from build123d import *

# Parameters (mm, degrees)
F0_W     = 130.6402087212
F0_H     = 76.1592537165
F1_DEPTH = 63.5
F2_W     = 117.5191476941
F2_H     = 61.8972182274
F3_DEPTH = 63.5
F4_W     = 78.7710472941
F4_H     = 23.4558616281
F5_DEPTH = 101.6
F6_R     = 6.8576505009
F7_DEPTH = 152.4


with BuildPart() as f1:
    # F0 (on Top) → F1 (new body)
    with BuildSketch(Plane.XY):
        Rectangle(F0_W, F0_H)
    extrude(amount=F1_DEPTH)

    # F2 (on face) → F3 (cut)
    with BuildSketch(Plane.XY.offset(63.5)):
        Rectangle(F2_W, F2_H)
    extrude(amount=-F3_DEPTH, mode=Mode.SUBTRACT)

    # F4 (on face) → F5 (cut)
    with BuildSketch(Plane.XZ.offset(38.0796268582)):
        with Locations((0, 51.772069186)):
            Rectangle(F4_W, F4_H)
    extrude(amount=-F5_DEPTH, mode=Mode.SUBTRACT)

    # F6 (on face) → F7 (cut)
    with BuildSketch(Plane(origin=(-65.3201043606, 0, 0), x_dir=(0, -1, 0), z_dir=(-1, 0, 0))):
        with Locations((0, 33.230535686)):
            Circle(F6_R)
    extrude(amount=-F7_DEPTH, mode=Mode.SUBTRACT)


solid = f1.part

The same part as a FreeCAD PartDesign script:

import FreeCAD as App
import Part
import Sketcher
from FreeCAD import Vector
Q = App.Units.Quantity

doc = App.newDocument("Part")
body = doc.addObject("PartDesign::Body", "Body")

sketch1 = body.newObject("Sketcher::SketchObject", "Sketch")
sketch1.AttachmentSupport = (doc.getObject("XY_Plane"), [""])
sketch1.MapMode = "FlatFace"
sketch1.addGeometry([
    Part.LineSegment(Vector(-65, 38, 0), Vector(-65, -38, 0)),
    Part.LineSegment(Vector(-65, -38, 0), Vector(65, -38, 0)),
    Part.LineSegment(Vector(65, -38, 0), Vector(65, 38, 0)),
    Part.LineSegment(Vector(65, 38, 0), Vector(-65, 38, 0)),
], False)
sketch1.addConstraint([
    Sketcher.Constraint("Coincident", 0, 2, 1, 1),
    Sketcher.Constraint("Coincident", 1, 2, 2, 1),
    Sketcher.Constraint("Coincident", 2, 2, 3, 1),
    Sketcher.Constraint("Coincident", 3, 2, 0, 1),
    Sketcher.Constraint("Vertical", 0),
    Sketcher.Constraint("Horizontal", 1),
    Sketcher.Constraint("Vertical", 2),
    Sketcher.Constraint("Horizontal", 3),
    Sketcher.Constraint("Symmetric", 0, 2, 2, 2, -1, 1),
    Sketcher.Constraint("DistanceX", 1, 1, 1, 2, Q("130.640209 mm")),
    Sketcher.Constraint("DistanceY", 0, 2, 0, 1, Q("76.159254 mm")),
])
pad1 = body.newObject("PartDesign::Pad", "Pad")
pad1.Profile = sketch1
pad1.Length = Q("2.5 in")

sketch2 = body.newObject("Sketcher::SketchObject", "Sketch001")
sketch2.AttachmentSupport = (doc.getObject("XY_Plane"), [""])
sketch2.MapMode = "FlatFace"
sketch2.AttachmentOffset = App.Placement(Vector(0, 0, 2.5 * 25.4), App.Rotation())
sketch2.addGeometry([
    Part.LineSegment(Vector(-59, 31, 0), Vector(-59, -31, 0)),
    Part.LineSegment(Vector(-59, -31, 0), Vector(59, -31, 0)),
    Part.LineSegment(Vector(59, -31, 0), Vector(59, 31, 0)),
    Part.LineSegment(Vector(59, 31, 0), Vector(-59, 31, 0)),
], False)
sketch2.addConstraint([
    Sketcher.Constraint("Coincident", 0, 2, 1, 1),
    Sketcher.Constraint("Coincident", 1, 2, 2, 1),
    Sketcher.Constraint("Coincident", 2, 2, 3, 1),
    Sketcher.Constraint("Coincident", 3, 2, 0, 1),
    Sketcher.Constraint("Vertical", 0),
    Sketcher.Constraint("Horizontal", 1),
    Sketcher.Constraint("Vertical", 2),
    Sketcher.Constraint("Horizontal", 3),
    Sketcher.Constraint("Symmetric", 0, 2, 2, 2, -1, 1),
    Sketcher.Constraint("DistanceY", 0, 2, 0, 1, Q("61.897218 mm")),
    Sketcher.Constraint("DistanceX", 1, 1, 1, 2, Q("117.519148 mm")),
])
pocket1 = body.newObject("PartDesign::Pocket", "Pocket")
pocket1.Profile = sketch2
pocket1.Length = Q("2.5 in")

sketch3 = body.newObject("Sketcher::SketchObject", "Sketch002")
sketch3.AttachmentSupport = (doc.getObject("XZ_Plane"), [""])
sketch3.MapMode = "FlatFace"
sketch3.AttachmentOffset = App.Placement(Vector(0, 0, 38.079627), App.Rotation())
sketch3.addGeometry([
    Part.LineSegment(Vector(-39, 64, 0), Vector(-39, 40, 0)),
    Part.LineSegment(Vector(-39, 40, 0), Vector(39, 40, 0)),
    Part.LineSegment(Vector(39, 40, 0), Vector(39, 64, 0)),
    Part.LineSegment(Vector(39, 64, 0), Vector(-39, 64, 0)),
], False)
sketch3.addConstraint([
    Sketcher.Constraint("Coincident", 0, 2, 1, 1),
    Sketcher.Constraint("Coincident", 1, 2, 2, 1),
    Sketcher.Constraint("Coincident", 2, 2, 3, 1),
    Sketcher.Constraint("Coincident", 3, 2, 0, 1),
    Sketcher.Constraint("Vertical", 0),
    Sketcher.Constraint("Horizontal", 1),
    Sketcher.Constraint("Vertical", 2),
    Sketcher.Constraint("Horizontal", 3),
    Sketcher.Constraint("DistanceY", -1, 1, 2, 2, Q("2.5 in")),
    Sketcher.Constraint("DistanceY", 0, 2, 0, 1, Q("23.455862 mm")),
    Sketcher.Constraint("DistanceX", 1, 1, 1, 2, Q("78.771047 mm")),
    Sketcher.Constraint("DistanceX", 0, 2, -1, 1, Q("39.385524 mm")),
])
pocket2 = body.newObject("PartDesign::Pocket", "Pocket001")
pocket2.Profile = sketch3
pocket2.Length = Q("4 in")

sketch4 = body.newObject("Sketcher::SketchObject", "Sketch003")
sketch4.AttachmentSupport = (doc.getObject("YZ_Plane"), [""])
sketch4.MapMode = "FlatFace"
sketch4.AttachmentOffset = App.Placement(Vector(0, 0, -65.320104), App.Rotation())
sketch4.addGeometry(Part.Circle(Vector(0, 33, 0), Vector(0, 0, 1), 7), False)
sketch4.addConstraint([
    Sketcher.Constraint("PointOnObject", 0, 3, -2),
    Sketcher.Constraint("Diameter", 0, Q("13.715301 mm")),
    Sketcher.Constraint("DistanceY", -1, 1, 0, 3, Q("33.230536 mm")),
])
pocket3 = body.newObject("PartDesign::Pocket", "Pocket002")
pocket3.Profile = sketch4
pocket3.Length = Q("6 in")
pocket3.Reversed = True

doc.recompute()
